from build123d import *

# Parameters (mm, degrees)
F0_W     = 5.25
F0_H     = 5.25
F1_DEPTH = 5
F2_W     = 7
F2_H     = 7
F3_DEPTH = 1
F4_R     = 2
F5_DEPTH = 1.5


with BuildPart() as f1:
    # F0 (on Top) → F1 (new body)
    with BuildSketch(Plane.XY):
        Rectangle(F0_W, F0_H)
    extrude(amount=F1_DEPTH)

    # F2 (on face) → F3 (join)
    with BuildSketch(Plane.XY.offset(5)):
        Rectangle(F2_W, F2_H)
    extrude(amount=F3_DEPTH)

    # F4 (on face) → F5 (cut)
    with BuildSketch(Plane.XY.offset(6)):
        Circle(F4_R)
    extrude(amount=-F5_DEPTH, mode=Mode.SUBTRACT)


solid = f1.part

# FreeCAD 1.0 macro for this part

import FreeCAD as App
import Part
import Sketcher

V = App.Vector


def add_polygon(sketch, points):
    """Adds a closed chain of lines whose ends are joined by coincident constraints."""
    first, n = sketch.GeometryCount, len(points)
    for a, b in zip(points, points[1:] + points[:1]):
        sketch.addGeometry(Part.LineSegment(App.Vector(*a, 0), App.Vector(*b, 0)), False)
    for i in range(n):
        sketch.addConstraint(Sketcher.Constraint("Coincident", first + i, 2, first + (i + 1) % n, 1))

doc = App.newDocument("Part")
params = doc.addObject("Spreadsheet::Sheet", "Params")
for row, (alias, value) in enumerate([
    ("sketch1_width", "5.25 mm"),
    ("pad1_length", "5 mm"),
    ("sketch2_width", "7 mm"),
    ("pad2_length", "1 mm"),
    ("sketch3_diameter", "4 mm"),
    ("pocket1_length", "1.5 mm"),
], start=1):
    params.set(f"A{row}", alias)
    params.set(f"B{row}", "=" + value)
    params.setAlias(f"B{row}", alias)

body = doc.addObject("PartDesign::Body", "Body")

sketch1 = doc.addObject("Sketcher::SketchObject", "Sketch")
body.addObject(sketch1)
sketch1.AttachmentSupport = (doc.XY_Plane, [""])
sketch1.MapMode = "FlatFace"
add_polygon(sketch1, [(-2.625, 2.625), (-2.625, -2.625), (2.625, -2.625), (2.625, 2.625)])
sketch1.addConstraint([
    Sketcher.Constraint("Vertical", 0),
    Sketcher.Constraint("Horizontal", 1),
    Sketcher.Constraint("Vertical", 2),
    Sketcher.Constraint("Horizontal", 3),
    Sketcher.Constraint("Symmetric", 0, 2, 2, 2, -1, 1),
    Sketcher.Constraint("Equal", 3, 0),
    Sketcher.Constraint("DistanceX", 1, 1, 1, 2, 5.25),
])
sketch1.setExpression("Constraints[10]", "Params.sketch1_width")
pad1 = doc.addObject("PartDesign::Pad", "Pad")
body.addObject(pad1)
pad1.Profile = sketch1
pad1.setExpression("Length", "Params.pad1_length")

sketch2 = doc.addObject("Sketcher::SketchObject", "Sketch001")
body.addObject(sketch2)
sketch2.AttachmentSupport = (doc.XY_Plane, [""])
sketch2.MapMode = "FlatFace"
sketch2.AttachmentOffset = App.Placement(V(0, 0, 5), App.Rotation())
add_polygon(sketch2, [(-3.5, 3.5), (-3.5, -3.5), (3.5, -3.5), (3.5, 3.5)])
sketch2.addConstraint([
    Sketcher.Constraint("Vertical", 0),
    Sketcher.Constraint("Horizontal", 1),
    Sketcher.Constraint("Vertical", 2),
    Sketcher.Constraint("Horizontal", 3),
    Sketcher.Constraint("Symmetric", 0, 2, 2, 2, -1, 1),
    Sketcher.Constraint("Equal", 3, 0),
    Sketcher.Constraint("DistanceX", 1, 1, 1, 2, 7.0),
])
sketch2.setExpression("Constraints[10]", "Params.sketch2_width")
pad2 = doc.addObject("PartDesign::Pad", "Pad001")
body.addObject(pad2)
pad2.Profile = sketch2
pad2.setExpression("Length", "Params.pad2_length")

sketch3 = doc.addObject("Sketcher::SketchObject", "Sketch002")
body.addObject(sketch3)
sketch3.AttachmentSupport = (doc.XY_Plane, [""])
sketch3.MapMode = "FlatFace"
sketch3.AttachmentOffset = App.Placement(V(0, 0, 6), App.Rotation())
sketch3.addGeometry(Part.Circle(V(0, 0, 0), V(0, 0, 1), 2), False)
sketch3.addConstraint([
    Sketcher.Constraint("Coincident", 0, 3, -1, 1),
    Sketcher.Constraint("Diameter", 0, 4.0),
])
sketch3.setExpression("Constraints[1]", "Params.sketch3_diameter")
pocket1 = doc.addObject("PartDesign::Pocket", "Pocket")
body.addObject(pocket1)
pocket1.Profile = sketch3
pocket1.setExpression("Length", "Params.pocket1_length")

doc.recompute()
